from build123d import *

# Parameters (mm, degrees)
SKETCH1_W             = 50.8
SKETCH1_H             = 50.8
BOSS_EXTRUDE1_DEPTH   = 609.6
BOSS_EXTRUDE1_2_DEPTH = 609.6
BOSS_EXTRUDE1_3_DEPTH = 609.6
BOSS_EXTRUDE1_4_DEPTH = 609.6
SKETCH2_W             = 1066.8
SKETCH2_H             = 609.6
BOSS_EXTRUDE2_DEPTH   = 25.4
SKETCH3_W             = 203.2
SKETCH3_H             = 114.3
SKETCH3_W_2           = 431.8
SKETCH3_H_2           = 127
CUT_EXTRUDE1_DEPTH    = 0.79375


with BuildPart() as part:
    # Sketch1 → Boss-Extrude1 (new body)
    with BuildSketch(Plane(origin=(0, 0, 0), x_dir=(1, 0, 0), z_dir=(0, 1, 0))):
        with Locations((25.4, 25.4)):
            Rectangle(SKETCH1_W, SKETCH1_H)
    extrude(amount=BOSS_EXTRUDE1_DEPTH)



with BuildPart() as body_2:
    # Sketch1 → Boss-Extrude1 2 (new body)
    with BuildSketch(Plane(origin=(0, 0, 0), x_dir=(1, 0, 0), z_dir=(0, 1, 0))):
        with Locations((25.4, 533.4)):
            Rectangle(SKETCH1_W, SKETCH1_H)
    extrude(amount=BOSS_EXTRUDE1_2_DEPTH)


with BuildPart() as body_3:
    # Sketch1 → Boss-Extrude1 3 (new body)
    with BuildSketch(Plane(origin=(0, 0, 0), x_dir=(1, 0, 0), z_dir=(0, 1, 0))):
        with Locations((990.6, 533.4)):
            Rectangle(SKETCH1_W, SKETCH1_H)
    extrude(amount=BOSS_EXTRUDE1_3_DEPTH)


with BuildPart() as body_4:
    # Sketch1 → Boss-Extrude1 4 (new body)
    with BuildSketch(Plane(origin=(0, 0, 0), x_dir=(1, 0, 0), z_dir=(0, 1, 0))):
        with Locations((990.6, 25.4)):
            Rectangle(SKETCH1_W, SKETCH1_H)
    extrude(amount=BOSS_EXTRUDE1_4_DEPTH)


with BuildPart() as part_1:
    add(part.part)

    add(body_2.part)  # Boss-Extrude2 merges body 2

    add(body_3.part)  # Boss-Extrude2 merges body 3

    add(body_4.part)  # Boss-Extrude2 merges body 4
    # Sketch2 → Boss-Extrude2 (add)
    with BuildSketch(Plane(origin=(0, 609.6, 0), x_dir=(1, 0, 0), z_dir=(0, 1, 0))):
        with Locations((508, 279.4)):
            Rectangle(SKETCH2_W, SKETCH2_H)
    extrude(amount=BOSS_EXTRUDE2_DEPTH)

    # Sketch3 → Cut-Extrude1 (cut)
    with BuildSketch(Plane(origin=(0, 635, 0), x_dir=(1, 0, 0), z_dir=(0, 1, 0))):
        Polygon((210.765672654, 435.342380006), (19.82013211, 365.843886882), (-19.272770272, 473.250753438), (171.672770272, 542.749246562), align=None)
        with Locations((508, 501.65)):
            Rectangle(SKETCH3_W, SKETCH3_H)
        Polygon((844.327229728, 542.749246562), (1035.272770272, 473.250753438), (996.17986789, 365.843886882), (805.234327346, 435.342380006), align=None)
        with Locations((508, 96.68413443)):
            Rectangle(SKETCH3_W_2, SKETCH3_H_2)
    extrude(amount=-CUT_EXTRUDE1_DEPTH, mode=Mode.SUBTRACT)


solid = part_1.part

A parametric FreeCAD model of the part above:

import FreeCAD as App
import Part
import Sketcher
from FreeCAD import Vector
Q = App.Units.Quantity

doc = App.newDocument("Part")
params = doc.addObject("Spreadsheet::Sheet", "Params")
for row, (alias, value) in enumerate([
    ("sketch1_width", "2 in"),
    ("pad1_length", "24 in"),
    ("sketch2_width", "2 in"),
    ("pad2_length", "24 in"),
    ("sketch3_width", "2 in"),
    ("pad3_length", "24 in"),
    ("sketch4_width", "2 in"),
    ("pad4_length", "24 in"),
    ("sketch5_width", "42 in"),
    ("sketch5_height", "24 in"),
    ("pad5_length", "1 in"),
    ("sketch6_width", "8 in"),
    ("sketch6_width2", "17 in"),
    ("sketch6_height", "5 in"),
    ("sketch6_length", "8 in"),
    ("sketch6_height2", "4.5 in"),
    ("pocket1_length", "0.03125 in"),
], start=1):
    params.set(f"A{row}", alias)
    params.set(f"B{row}", "=" + value)
    params.setAlias(f"B{row}", alias)

body = doc.addObject("PartDesign::Body", "Body")

# Sketch on XZ plane
sketch1 = body.newObject("Sketcher::SketchObject", "Sketch")
sketch1.AttachmentSupport = (doc.getObject("XZ_Plane"), [""])
sketch1.MapMode = "FlatFace"
sketch1.addGeometry(Part.LineSegment(Vector(0, -51, 0), Vector(0, 0, 0)), False)
sketch1.addGeometry(Part.LineSegment(Vector(0, 0, 0), Vector(51, 0, 0)), False)
sketch1.addGeometry(Part.LineSegment(Vector(51, 0, 0), Vector(51, -51, 0)), False)
sketch1.addGeometry(Part.LineSegment(Vector(51, -51, 0), Vector(0, -51, 0)), False)
sketch1.addConstraint(Sketcher.Constraint("Coincident", 0, 2, 1, 1))
sketch1.addConstraint(Sketcher.Constraint("Coincident", 1, 2, 2, 1))
sketch1.addConstraint(Sketcher.Constraint("Coincident", 2, 2, 3, 1))
sketch1.addConstraint(Sketcher.Constraint("Coincident", 3, 2, 0, 1))
sketch1.addConstraint(Sketcher.Constraint("Vertical", 0))
sketch1.addConstraint(Sketcher.Constraint("Horizontal", 1))
sketch1.addConstraint(Sketcher.Constraint("Vertical", 2))
sketch1.addConstraint(Sketcher.Constraint("Horizontal", 3))
sketch1.addConstraint(Sketcher.Constraint("Coincident", 0, 2, -1, 1))
sketch1.addConstraint(Sketcher.Constraint("Equal", 3, 0))
sketch1.addConstraint(Sketcher.Constraint("DistanceX", 1, 1, 1, 2, Q("2 in")))
sketch1.setExpression("Constraints[10]", "Params.sketch1_width")
pad1 = body.newObject("PartDesign::Pad", "Pad")
pad1.Profile = sketch1
pad1.setExpression("Length", "Params.pad1_length")
pad1.Reversed = True
body2 = doc.addObject("PartDesign::Body", "Body001")

# Sketch on XZ plane
sketch2 = body2.newObject("Sketcher::SketchObject", "Sketch001")
sketch2.AttachmentSupport = (doc.getObject("XZ_Plane001"), [""])
sketch2.MapMode = "FlatFace"
sketch2.addGeometry(Part.LineSegment(Vector(0, -559, 0), Vector(0, -508, 0)), False)
sketch2.addGeometry(Part.LineSegment(Vector(0, -508, 0), Vector(51, -508, 0)), False)
sketch2.addGeometry(Part.LineSegment(Vector(51, -508, 0), Vector(51, -559, 0)), False)
sketch2.addGeometry(Part.LineSegment(Vector(51, -559, 0), Vector(0, -559, 0)), False)
sketch2.addConstraint(Sketcher.Constraint("Coincident", 0, 2, 1, 1))
sketch2.addConstraint(Sketcher.Constraint("Coincident", 1, 2, 2, 1))
sketch2.addConstraint(Sketcher.Constraint("Coincident", 2, 2, 3, 1))
sketch2.addConstraint(Sketcher.Constraint("Coincident", 3, 2, 0, 1))
sketch2.addConstraint(Sketcher.Constraint("Vertical", 0))
sketch2.addConstraint(Sketcher.Constraint("Horizontal", 1))
sketch2.addConstraint(Sketcher.Constraint("Vertical", 2))
sketch2.addConstraint(Sketcher.Constraint("Horizontal", 3))
sketch2.addConstraint(Sketcher.Constraint("PointOnObject", 0, 2, -2))
sketch2.addConstraint(Sketcher.Constraint("Equal", 3, 0))
sketch2.addConstraint(Sketcher.Constraint("DistanceX", 1, 1, 1, 2, Q("2 in")))
sketch2.addConstraint(Sketcher.Constraint("DistanceY", 0, 2, -1, 1, Q("20 in")))
sketch2.setExpression("Constraints[10]", "Params.sketch2_width")
pad2 = body2.newObject("PartDesign::Pad", "Pad001")
pad2.Profile = sketch2
pad2.setExpression("Length", "Params.pad2_length")
pad2.Reversed = True
body3 = doc.addObject("PartDesign::Body", "Body002")

# Sketch on XZ plane
sketch3 = body3.newObject("Sketcher::SketchObject", "Sketch002")
sketch3.AttachmentSupport = (doc.getObject("XZ_Plane002"), [""])
sketch3.MapMode = "FlatFace"
sketch3.addGeometry(Part.LineSegment(Vector(965, -559, 0), Vector(965, -508, 0)), False)
sketch3.addGeometry(Part.LineSegment(Vector(965, -508, 0), Vector(1016, -508, 0)), False)
sketch3.addGeometry(Part.LineSegment(Vector(1016, -508, 0), Vector(1016, -559, 0)), False)
sketch3.addGeometry(Part.LineSegment(Vector(1016, -559, 0), Vector(965, -559, 0)), False)
sketch3.addConstraint(Sketcher.Constraint("Coincident", 0, 2, 1, 1))
sketch3.addConstraint(Sketcher.Constraint("Coincident", 1, 2, 2, 1))
sketch3.addConstraint(Sketcher.Constraint("Coincident", 2, 2, 3, 1))
sketch3.addConstraint(Sketcher.Constraint("Coincident", 3, 2, 0, 1))
sketch3.addConstraint(Sketcher.Constraint("Vertical", 0))
sketch3.addConstraint(Sketcher.Constraint("Horizontal", 1))
sketch3.addConstraint(Sketcher.Constraint("Vertical", 2))
sketch3.addConstraint(Sketcher.Constraint("Horizontal", 3))
sketch3.addConstraint(Sketcher.Constraint("Equal", 3, 0))
sketch3.addConstraint(Sketcher.Constraint("DistanceX", 1, 1, 1, 2, Q("2 in")))
sketch3.addConstraint(Sketcher.Constraint("DistanceX", -1, 1, 0, 2, Q("38 in")))
sketch3.addConstraint(Sketcher.Constraint("DistanceY", 0, 2, -1, 1, Q("20 in")))
sketch3.setExpression("Constraints[9]", "Params.sketch3_width")
pad3 = body3.newObject("PartDesign::Pad", "Pad002")
pad3.Profile = sketch3
pad3.setExpression("Length", "Params.pad3_length")
pad3.Reversed = True
body4 = doc.addObject("PartDesign::Body", "Body003")

# Sketch on XZ plane
sketch4 = body4.newObject("Sketcher::SketchObject", "Sketch003")
sketch4.AttachmentSupport = (doc.getObject("XZ_Plane003"), [""])
sketch4.MapMode = "FlatFace"
sketch4.addGeometry(Part.LineSegment(Vector(965, -51, 0), Vector(965, 0, 0)), False)
sketch4.addGeometry(Part.LineSegment(Vector(965, 0, 0), Vector(1016, 0, 0)), False)
sketch4.addGeometry(Part.LineSegment(Vector(1016, 0, 0), Vector(1016, -51, 0)), False)
sketch4.addGeometry(Part.LineSegment(Vector(1016, -51, 0), Vector(965, -51, 0)), False)
sketch4.addConstraint(Sketcher.Constraint("Coincident", 0, 2, 1, 1))
sketch4.addConstraint(Sketcher.Constraint("Coincident", 1, 2, 2, 1))
sketch4.addConstraint(Sketcher.Constraint("Coincident", 2, 2, 3, 1))
sketch4.addConstraint(Sketcher.Constraint("Coincident", 3, 2, 0, 1))
sketch4.addConstraint(Sketcher.Constraint("Vertical", 0))
sketch4.addConstraint(Sketcher.Constraint("Horizontal", 1))
sketch4.addConstraint(Sketcher.Constraint("Vertical", 2))
sketch4.addConstraint(Sketcher.Constraint("Horizontal", 3))
sketch4.addConstraint(Sketcher.Constraint("PointOnObject", 0, 2, -1))
sketch4.addConstraint(Sketcher.Constraint("Equal", 3, 0))
sketch4.addConstraint(Sketcher.Constraint("DistanceX", 1, 1, 1, 2, Q("2 in")))
sketch4.addConstraint(Sketcher.Constraint("DistanceX", -1, 1, 0, 2, Q("38 in")))
sketch4.setExpression("Constraints[10]", "Params.sketch4_width")
pad4 = body4.newObject("PartDesign::Pad", "Pad003")
pad4.Profile = sketch4
pad4.setExpression("Length", "Params.pad4_length")
pad4.Reversed = True
body.AllowCompound = True
doc.recompute()

boolean = body.newObject("PartDesign::Boolean", "Boolean")
boolean.Type = "Fuse"
boolean.addObjects([body2])
doc.recompute()

boolean2 = body.newObject("PartDesign::Boolean", "Boolean001")
boolean2.Type = "Fuse"
boolean2.addObjects([body3])
doc.recompute()

boolean3 = body.newObject("PartDesign::Boolean", "Boolean002")
boolean3.Type = "Fuse"
boolean3.addObjects([body4])

# Sketch on XZ plane
sketch5 = body.newObject("Sketcher::SketchObject", "Sketch004")
sketch5.AttachmentSupport = (doc.getObject("XZ_Plane"), [""])
sketch5.MapMode = "FlatFace"
sketch5.AttachmentOffset = App.Placement(Vector(0, 0, -24 * 25.4), App.Rotation())
sketch5.addGeometry(Part.LineSegment(Vector(-25, -584, 0), Vector(-25, 25, 0)), False)
sketch5.addGeometry(Part.LineSegment(Vector(-25, 25, 0), Vector(1041, 25, 0)), False)
sketch5.addGeometry(Part.LineSegment(Vector(1041, 25, 0), Vector(1041, -584, 0)), False)
sketch5.addGeometry(Part.LineSegment(Vector(1041, -584, 0), Vector(-25, -584, 0)), False)
sketch5.addConstraint(Sketcher.Constraint("Coincident", 0, 2, 1, 1))
sketch5.addConstraint(Sketcher.Constraint("Coincident", 1, 2, 2, 1))
sketch5.addConstraint(Sketcher.Constraint("Coincident", 2, 2, 3, 1))
sketch5.addConstraint(Sketcher.Constraint("Coincident", 3, 2, 0, 1))
sketch5.addConstraint(Sketcher.Constraint("Vertical", 0))
sketch5.addConstraint(Sketcher.Constraint("Horizontal", 1))
sketch5.addConstraint(Sketcher.Constraint("Vertical", 2))
sketch5.addConstraint(Sketcher.Constraint("Horizontal", 3))
sketch5.addConstraint(Sketcher.Constraint("DistanceX", 1, 1, 1, 2, Q("42 in")))
sketch5.addConstraint(Sketcher.Constraint("DistanceY", 0, 1, 0, 2, Q("24 in")))
sketch5.addConstraint(Sketcher.Constraint("DistanceX", 0, 2, -1, 1, Q("1 in")))
sketch5.addConstraint(Sketcher.Constraint("DistanceY", -1, 1, 0, 2, Q("1 in")))
sketch5.setExpression("Constraints[8]", "Params.sketch5_width")
sketch5.setExpression("Constraints[9]", "Params.sketch5_height")
pad5 = body.newObject("PartDesign::Pad", "Pad004")
pad5.Profile = sketch5
pad5.setExpression("Length", "Params.pad5_length")
pad5.Reversed = True

# Sketch on XZ plane
sketch6 = body.newObject("Sketcher::SketchObject", "Sketch005")
sketch6.AttachmentSupport = (doc.getObject("XZ_Plane"), [""])
sketch6.MapMode = "FlatFace"
sketch6.AttachmentOffset = App.Placement(Vector(0, 0, -25 * 25.4), App.Rotation())
sketch6.addGeometry(Part.LineSegment(Vector(20, -366, 0), Vector(211, -435, 0)), False)
sketch6.addGeometry(Part.LineSegment(Vector(211, -435, 0), Vector(172, -543, 0)), False)
sketch6.addGeometry(Part.LineSegment(Vector(172, -543, 0), Vector(-19, -473, 0)), False)
sketch6.addGeometry(Part.LineSegment(Vector(-19, -473, 0), Vector(20, -366, 0)), False)
sketch6.addGeometry(Part.LineSegment(Vector(406, -559, 0), Vector(406, -444, 0)), False)
sketch6.addGeometry(Part.LineSegment(Vector(406, -444, 0), Vector(610, -444, 0)), False)
sketch6.addGeometry(Part.LineSegment(Vector(610, -444, 0), Vector(610, -559, 0)), False)
sketch6.addGeometry(Part.LineSegment(Vector(610, -559, 0), Vector(406, -559, 0)), False)
sketch6.addGeometry(Part.LineSegment(Vector(1035, -473, 0), Vector(844, -543, 0)), False)
sketch6.addGeometry(Part.LineSegment(Vector(844, -543, 0), Vector(805, -435, 0)), False)
sketch6.addGeometry(Part.LineSegment(Vector(805, -435, 0), Vector(996, -366, 0)), False)
sketch6.addGeometry(Part.LineSegment(Vector(996, -366, 0), Vector(1035, -473, 0)), False)
sketch6.addGeometry(Part.LineSegment(Vector(292, -160, 0), Vector(292, -33, 0)), False)
sketch6.addGeometry(Part.LineSegment(Vector(292, -33, 0), Vector(724, -33, 0)), False)
sketch6.addGeometry(Part.LineSegment(Vector(724, -33, 0), Vector(724, -160, 0)), False)
sketch6.addGeometry(Part.LineSegment(Vector(724, -160, 0), Vector(292, -160, 0)), False)
sketch6.addConstraint(Sketcher.Constraint("Coincident", 0, 2, 1, 1))
sketch6.addConstraint(Sketcher.Constraint("Coincident", 1, 2, 2, 1))
sketch6.addConstraint(Sketcher.Constraint("Coincident", 2, 2, 3, 1))
sketch6.addConstraint(Sketcher.Constraint("Coincident", 3, 2, 0, 1))
sketch6.addConstraint(Sketcher.Constraint("Coincident", 4, 2, 5, 1))
sketch6.addConstraint(Sketcher.Constraint("Coincident", 5, 2, 6, 1))
sketch6.addConstraint(Sketcher.Constraint("Coincident", 6, 2, 7, 1))
sketch6.addConstraint(Sketcher.Constraint("Coincident", 7, 2, 4, 1))
sketch6.addConstraint(Sketcher.Constraint("Coincident", 8, 2, 9, 1))
sketch6.addConstraint(Sketcher.Constraint("Coincident", 9, 2, 10, 1))
sketch6.addConstraint(Sketcher.Constraint("Coincident", 10, 2, 11, 1))
sketch6.addConstraint(Sketcher.Constraint("Coincident", 11, 2, 8, 1))
sketch6.addConstraint(Sketcher.Constraint("Coincident", 12, 2, 13, 1))
sketch6.addConstraint(Sketcher.Constraint("Coincident", 13, 2, 14, 1))
sketch6.addConstraint(Sketcher.Constraint("Coincident", 14, 2, 15, 1))
sketch6.addConstraint(Sketcher.Constraint("Coincident", 15, 2, 12, 1))
sketch6.addConstraint(Sketcher.Constraint("Vertical", 4))
sketch6.addConstraint(Sketcher.Constraint("Horizontal", 5))
sketch6.addConstraint(Sketcher.Constraint("Vertical", 6))
sketch6.addConstraint(Sketcher.Constraint("Horizontal", 7))
sketch6.addConstraint(Sketcher.Constraint("Vertical", 12))
sketch6.addConstraint(Sketcher.Constraint("Horizontal", 13))
sketch6.addConstraint(Sketcher.Constraint("Vertical", 14))
sketch6.addConstraint(Sketcher.Constraint("Horizontal", 15))
sketch6.addConstraint(Sketcher.Constraint("Perpendicular", 0, 1))
sketch6.addConstraint(Sketcher.Constraint("Perpendicular", 1, 2))
sketch6.addConstraint(Sketcher.Constraint("Perpendicular", 2, 3))
sketch6.addConstraint(Sketcher.Constraint("Perpendicular", 8, 9))
sketch6.addConstraint(Sketcher.Constraint("Perpendicular", 9, 10))
sketch6.addConstraint(Sketcher.Constraint("Perpendicular", 10, 11))
sketch6.addConstraint(Sketcher.Constraint("Horizontal", 1, 2, 8, 2))
sketch6.addConstraint(Sketcher.Constraint("Horizontal", 0, 2, 9, 2))
sketch6.addConstraint(Sketcher.Constraint("Horizontal", 3, 2, 10, 2))
sketch6.addConstraint(Sketcher.Constraint("Equal", 2, 8))
sketch6.addConstraint(Sketcher.Constraint("DistanceX", 5, 1, 5, 2, Q("8 in")))
sketch6.addConstraint(Sketcher.Constraint("DistanceX", 13, 1, 13, 2, Q("17 in")))
sketch6.addConstraint(Sketcher.Constraint("DistanceY", 12, 1, 12, 2, Q("5 in")))
sketch6.addConstraint(Sketcher.Constraint("Distance", 0, Q("8 in")))
sketch6.addConstraint(Sketcher.Constraint("DistanceY", 4, 1, 4, 2, Q("4.5 in")))
sketch6.addConstraint(Sketcher.Constraint("DistanceX", -1, 1, 4, 2, Q("16 in")))
sketch6.addConstraint(Sketcher.Constraint("DistanceY", 6, 2, -1, 1, Q("22 in")))
sketch6.addConstraint(Sketcher.Constraint("Angle", 0, Q("-20 deg")))
sketch6.addConstraint(Sketcher.Constraint("Distance", 1, Q("4.5 in")))
sketch6.addConstraint(Sketcher.Constraint("DistanceX", -1, 1, 12, 2, Q("11.5 in")))
sketch6.addConstraint(Sketcher.Constraint("DistanceY", 0, 2, -1, 1, 435.34238))
sketch6.addConstraint(Sketcher.Constraint("DistanceX", -1, 1, 1, 2, 171.67277))
sketch6.addConstraint(Sketcher.Constraint("DistanceX", -1, 1, 8, 2, 844.32723))
sketch6.addConstraint(Sketcher.Constraint("DistanceY", 12, 2, -1, 1, 33.184134))
sketch6.setExpression("Constraints[34]", "Params.sketch6_width")
sketch6.setExpression("Constraints[35]", "Params.sketch6_width2")
sketch6.setExpression("Constraints[36]", "Params.sketch6_height")
sketch6.setExpression("Constraints[37]", "Params.sketch6_length")
sketch6.setExpression("Constraints[38]", "Params.sketch6_height2")
pocket1 = body.newObject("PartDesign::Pocket", "Pocket")
pocket1.Profile = sketch6
pocket1.setExpression("Length", "Params.pocket1_length")
pocket1.Reversed = True

doc.recompute()
